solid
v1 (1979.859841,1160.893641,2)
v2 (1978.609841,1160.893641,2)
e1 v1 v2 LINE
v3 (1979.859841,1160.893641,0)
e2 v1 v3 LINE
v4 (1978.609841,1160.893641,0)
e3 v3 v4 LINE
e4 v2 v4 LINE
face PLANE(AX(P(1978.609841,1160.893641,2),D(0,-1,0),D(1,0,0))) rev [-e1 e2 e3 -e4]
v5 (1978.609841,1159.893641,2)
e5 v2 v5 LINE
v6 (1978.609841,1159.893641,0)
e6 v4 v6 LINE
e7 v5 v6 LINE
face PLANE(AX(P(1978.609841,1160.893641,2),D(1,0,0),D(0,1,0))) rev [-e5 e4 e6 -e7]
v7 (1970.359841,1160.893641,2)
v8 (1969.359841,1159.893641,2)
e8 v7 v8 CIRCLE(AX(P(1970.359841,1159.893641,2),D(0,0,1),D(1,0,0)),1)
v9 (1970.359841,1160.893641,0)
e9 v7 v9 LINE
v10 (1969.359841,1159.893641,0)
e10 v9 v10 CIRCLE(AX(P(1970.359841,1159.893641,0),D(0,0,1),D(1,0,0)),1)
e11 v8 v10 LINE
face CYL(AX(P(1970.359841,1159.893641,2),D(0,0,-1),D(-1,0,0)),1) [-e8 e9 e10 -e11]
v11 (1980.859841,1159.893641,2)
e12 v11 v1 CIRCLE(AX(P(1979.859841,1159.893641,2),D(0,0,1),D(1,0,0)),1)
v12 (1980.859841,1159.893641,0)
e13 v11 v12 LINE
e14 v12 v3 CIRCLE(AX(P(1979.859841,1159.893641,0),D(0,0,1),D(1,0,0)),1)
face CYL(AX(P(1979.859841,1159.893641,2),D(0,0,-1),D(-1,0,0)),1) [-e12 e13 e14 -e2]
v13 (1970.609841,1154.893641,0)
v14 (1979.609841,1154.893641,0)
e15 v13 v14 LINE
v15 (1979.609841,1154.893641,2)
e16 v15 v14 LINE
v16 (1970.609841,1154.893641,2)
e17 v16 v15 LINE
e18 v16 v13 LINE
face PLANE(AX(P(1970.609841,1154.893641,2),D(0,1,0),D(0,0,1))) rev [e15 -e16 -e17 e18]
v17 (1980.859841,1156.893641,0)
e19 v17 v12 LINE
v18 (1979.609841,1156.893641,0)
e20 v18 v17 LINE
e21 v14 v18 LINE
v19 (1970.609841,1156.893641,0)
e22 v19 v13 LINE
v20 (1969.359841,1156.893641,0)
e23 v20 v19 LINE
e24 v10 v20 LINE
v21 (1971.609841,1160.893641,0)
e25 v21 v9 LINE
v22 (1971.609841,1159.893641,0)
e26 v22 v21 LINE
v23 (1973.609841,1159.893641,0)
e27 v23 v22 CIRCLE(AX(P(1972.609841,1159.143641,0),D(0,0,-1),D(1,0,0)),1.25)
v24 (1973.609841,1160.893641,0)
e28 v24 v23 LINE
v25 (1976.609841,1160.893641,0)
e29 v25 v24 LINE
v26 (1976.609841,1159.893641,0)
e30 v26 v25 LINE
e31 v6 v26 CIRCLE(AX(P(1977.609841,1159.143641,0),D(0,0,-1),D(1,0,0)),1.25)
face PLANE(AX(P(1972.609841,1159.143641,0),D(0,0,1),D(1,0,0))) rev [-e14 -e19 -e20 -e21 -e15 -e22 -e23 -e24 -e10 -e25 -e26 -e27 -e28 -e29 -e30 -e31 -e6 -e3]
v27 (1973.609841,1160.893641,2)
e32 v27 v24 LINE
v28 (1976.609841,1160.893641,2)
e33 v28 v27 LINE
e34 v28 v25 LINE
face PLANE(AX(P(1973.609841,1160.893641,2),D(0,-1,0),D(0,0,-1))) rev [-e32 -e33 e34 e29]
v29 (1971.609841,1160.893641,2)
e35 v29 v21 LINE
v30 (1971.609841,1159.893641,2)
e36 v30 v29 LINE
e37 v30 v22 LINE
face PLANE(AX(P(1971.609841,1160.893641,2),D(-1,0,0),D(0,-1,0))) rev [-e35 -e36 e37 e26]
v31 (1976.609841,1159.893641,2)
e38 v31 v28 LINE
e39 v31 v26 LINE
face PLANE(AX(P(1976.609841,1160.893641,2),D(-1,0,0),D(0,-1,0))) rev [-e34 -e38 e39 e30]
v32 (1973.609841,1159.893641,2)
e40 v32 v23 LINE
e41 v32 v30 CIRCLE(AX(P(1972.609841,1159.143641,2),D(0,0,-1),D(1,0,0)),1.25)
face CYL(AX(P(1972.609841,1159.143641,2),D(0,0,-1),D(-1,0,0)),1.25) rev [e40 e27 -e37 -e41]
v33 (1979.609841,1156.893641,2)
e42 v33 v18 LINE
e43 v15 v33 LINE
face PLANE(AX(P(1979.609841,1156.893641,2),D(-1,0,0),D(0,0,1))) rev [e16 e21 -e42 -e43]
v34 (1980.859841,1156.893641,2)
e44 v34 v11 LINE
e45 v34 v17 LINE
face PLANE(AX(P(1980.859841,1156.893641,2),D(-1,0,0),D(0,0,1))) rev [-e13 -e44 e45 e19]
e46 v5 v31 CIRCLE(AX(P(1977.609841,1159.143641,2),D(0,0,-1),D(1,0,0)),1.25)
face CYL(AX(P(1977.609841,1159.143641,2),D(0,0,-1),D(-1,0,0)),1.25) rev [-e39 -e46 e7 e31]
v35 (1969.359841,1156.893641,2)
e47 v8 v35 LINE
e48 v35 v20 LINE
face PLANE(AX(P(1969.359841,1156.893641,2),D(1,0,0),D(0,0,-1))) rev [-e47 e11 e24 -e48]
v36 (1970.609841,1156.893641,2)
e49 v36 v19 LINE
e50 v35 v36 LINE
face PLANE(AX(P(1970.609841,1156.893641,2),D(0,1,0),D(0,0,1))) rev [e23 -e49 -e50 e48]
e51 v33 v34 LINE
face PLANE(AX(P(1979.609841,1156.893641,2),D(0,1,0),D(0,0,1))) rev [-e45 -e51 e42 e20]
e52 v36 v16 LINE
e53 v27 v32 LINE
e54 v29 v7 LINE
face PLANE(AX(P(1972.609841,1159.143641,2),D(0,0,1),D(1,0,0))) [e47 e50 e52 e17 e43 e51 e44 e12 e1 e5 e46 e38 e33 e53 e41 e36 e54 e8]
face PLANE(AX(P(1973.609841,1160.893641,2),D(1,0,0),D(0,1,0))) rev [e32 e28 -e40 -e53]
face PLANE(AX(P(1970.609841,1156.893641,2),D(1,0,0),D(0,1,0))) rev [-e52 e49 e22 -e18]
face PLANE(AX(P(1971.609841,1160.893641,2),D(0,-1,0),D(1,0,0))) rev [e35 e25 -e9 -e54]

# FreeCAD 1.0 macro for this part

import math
import FreeCAD as App
import Part
import Sketcher

V = App.Vector
Q = App.Units.Quantity

doc = App.newDocument("Part")
body = doc.addObject("PartDesign::Body", "Body")

sketch1 = body.newObject("Sketcher::SketchObject", "Sketch")
sketch1.AttachmentSupport = (doc.getObject("XY_Plane"), [""])
sketch1.MapMode = "FlatFace"
sketch1.addGeometry(Part.LineSegment(V(1971.6, 1159.9, 0), V(1971.6, 1160.9, 0)), False)
sketch1.addGeometry(Part.LineSegment(V(1971.6, 1160.9, 0), V(1970.4, 1160.9, 0)), False)
sketch1.addGeometry(Part.ArcOfCircle(Part.Circle(V(1970.4, 1159.9, 0), V(0, 0, 1), 1), math.radians(90), math.radians(180)), False)
sketch1.addGeometry(Part.LineSegment(V(1969.4, 1159.9, 0), V(1969.4, 1156.9, 0)), False)
sketch1.addGeometry(Part.LineSegment(V(1969.4, 1156.9, 0), V(1970.6, 1156.9, 0)), False)
sketch1.addGeometry(Part.LineSegment(V(1970.6, 1156.9, 0), V(1970.6, 1154.9, 0)), False)
sketch1.addGeometry(Part.LineSegment(V(1970.6, 1154.9, 0), V(1979.6, 1154.9, 0)), False)
sketch1.addGeometry(Part.LineSegment(V(1979.6, 1154.9, 0), V(1979.6, 1156.9, 0)), False)
sketch1.addGeometry(Part.LineSegment(V(1979.6, 1156.9, 0), V(1980.9, 1156.9, 0)), False)
sketch1.addGeometry(Part.LineSegment(V(1980.9, 1156.9, 0), V(1980.9, 1159.9, 0)), False)
sketch1.addGeometry(Part.ArcOfCircle(Part.Circle(V(1979.9, 1159.9, 0), V(0, 0, 1), 1), math.radians(0), math.radians(90)), False)
sketch1.addGeometry(Part.LineSegment(V(1979.9, 1160.9, 0), V(1978.6, 1160.9, 0)), False)
sketch1.addGeometry(Part.LineSegment(V(1978.6, 1160.9, 0), V(1978.6, 1159.9, 0)), False)
sketch1.addGeometry(Part.ArcOfCircle(Part.Circle(V(1977.6, 1159.1, 0), V(0, 0, 1), 1.2), math.radians(143), math.radians(397)), False)
sketch1.addGeometry(Part.LineSegment(V(1976.6, 1159.9, 0), V(1976.6, 1160.9, 0)), False)
sketch1.addGeometry(Part.LineSegment(V(1976.6, 1160.9, 0), V(1973.6, 1160.9, 0)), False)
sketch1.addGeometry(Part.LineSegment(V(1973.6, 1160.9, 0), V(1973.6, 1159.9, 0)), False)
sketch1.addGeometry(Part.ArcOfCircle(Part.Circle(V(1972.6, 1159.1, 0), V(0, 0, 1), 1.2), math.radians(143), math.radians(397)), False)
sketch1.addConstraint(Sketcher.Constraint("Coincident", 0, 2, 1, 1))
sketch1.addConstraint(Sketcher.Constraint("Tangent", 1, 2, 2, 1))
sketch1.addConstraint(Sketcher.Constraint("Tangent", 2, 2, 3, 1))
sketch1.addConstraint(Sketcher.Constraint("Coincident", 3, 2, 4, 1))
sketch1.addConstraint(Sketcher.Constraint("Coincident", 4, 2, 5, 1))
sketch1.addConstraint(Sketcher.Constraint("Coincident", 5, 2, 6, 1))
sketch1.addConstraint(Sketcher.Constraint("Coincident", 6, 2, 7, 1))
sketch1.addConstraint(Sketcher.Constraint("Coincident", 7, 2, 8, 1))
sketch1.addConstraint(Sketcher.Constraint("Coincident", 8, 2, 9, 1))
sketch1.addConstraint(Sketcher.Constraint("Tangent", 9, 2, 10, 1))
sketch1.addConstraint(Sketcher.Constraint("Tangent", 10, 2, 11, 1))
sketch1.addConstraint(Sketcher.Constraint("Coincident", 11, 2, 12, 1))
sketch1.addConstraint(Sketcher.Constraint("Coincident", 12, 2, 13, 2))
sketch1.addConstraint(Sketcher.Constraint("Coincident", 13, 1, 14, 1))
sketch1.addConstraint(Sketcher.Constraint("Coincident", 14, 2, 15, 1))
sketch1.addConstraint(Sketcher.Constraint("Coincident", 15, 2, 16, 1))
sketch1.addConstraint(Sketcher.Constraint("Coincident", 16, 2, 17, 2))
sketch1.addConstraint(Sketcher.Constraint("Coincident", 17, 1, 0, 1))
sketch1.addConstraint(Sketcher.Constraint("Vertical", 0))
sketch1.addConstraint(Sketcher.Constraint("Horizontal", 1))
sketch1.addConstraint(Sketcher.Constraint("Vertical", 3))
sketch1.addConstraint(Sketcher.Constraint("Horizontal", 4))
sketch1.addConstraint(Sketcher.Constraint("Vertical", 5))
sketch1.addConstraint(Sketcher.Constraint("Horizontal", 6))
sketch1.addConstraint(Sketcher.Constraint("Vertical", 7))
sketch1.addConstraint(Sketcher.Constraint("Horizontal", 8))
sketch1.addConstraint(Sketcher.Constraint("Vertical", 9))
sketch1.addConstraint(Sketcher.Constraint("Horizontal", 11))
sketch1.addConstraint(Sketcher.Constraint("Vertical", 12))
sketch1.addConstraint(Sketcher.Constraint("Vertical", 14))
sketch1.addConstraint(Sketcher.Constraint("Horizontal", 15))
sketch1.addConstraint(Sketcher.Constraint("Vertical", 16))
sketch1.addConstraint(Sketcher.Constraint("Equal", 2, 10))
sketch1.addConstraint(Sketcher.Constraint("Equal", 13, 17))
sketch1.addConstraint(Sketcher.Constraint("Horizontal", 2, 3, 10, 3))
sketch1.addConstraint(Sketcher.Constraint("Horizontal", 13, 3, 17, 3))
sketch1.addConstraint(Sketcher.Constraint("Horizontal", 4, 2, 7, 2))
sketch1.addConstraint(Sketcher.Constraint("Horizontal", 9, 2, 12, 2))
sketch1.addConstraint(Sketcher.Constraint("Horizontal", 12, 2, 13, 1))
sketch1.addConstraint(Sketcher.Constraint("Horizontal", 11, 2, 14, 2))
sketch1.addConstraint(Sketcher.Constraint("Horizontal", 13, 1, 16, 2))
sketch1.addConstraint(Sketcher.Constraint("Horizontal", 16, 2, 17, 1))
sketch1.addConstraint(Sketcher.Constraint("Equal", 1, 4))
sketch1.addConstraint(Sketcher.Constraint("Equal", 4, 8))
sketch1.addConstraint(Sketcher.Constraint("Equal", 8, 11))
sketch1.addConstraint(Sketcher.Constraint("Equal", 15, 3))
sketch1.addConstraint(Sketcher.Constraint("Radius", 2, Q("1 mm")))
sketch1.addConstraint(Sketcher.Constraint("DistanceX", 6, 1, 6, 2, Q("9 mm")))
sketch1.addConstraint(Sketcher.Constraint("DistanceX", 15, 2, 15, 1, Q("3 mm")))
sketch1.addConstraint(Sketcher.Constraint("DistanceY", 5, 2, 5, 1, Q("2 mm")))
sketch1.addConstraint(Sketcher.Constraint("Radius", 13, Q("1.25 mm")))
sketch1.addConstraint(Sketcher.Constraint("DistanceX", 1, 2, 1, 1, Q("1.25 mm")))
sketch1.addConstraint(Sketcher.Constraint("DistanceX", -1, 1, 2, 3, Q("1970.359841 mm")))
sketch1.addConstraint(Sketcher.Constraint("DistanceY", -1, 1, 2, 3, Q("1159.893641 mm")))
pad1 = body.newObject("PartDesign::Pad", "Pad")
pad1.Profile = sketch1
pad1.Length = 2

doc.recompute()
